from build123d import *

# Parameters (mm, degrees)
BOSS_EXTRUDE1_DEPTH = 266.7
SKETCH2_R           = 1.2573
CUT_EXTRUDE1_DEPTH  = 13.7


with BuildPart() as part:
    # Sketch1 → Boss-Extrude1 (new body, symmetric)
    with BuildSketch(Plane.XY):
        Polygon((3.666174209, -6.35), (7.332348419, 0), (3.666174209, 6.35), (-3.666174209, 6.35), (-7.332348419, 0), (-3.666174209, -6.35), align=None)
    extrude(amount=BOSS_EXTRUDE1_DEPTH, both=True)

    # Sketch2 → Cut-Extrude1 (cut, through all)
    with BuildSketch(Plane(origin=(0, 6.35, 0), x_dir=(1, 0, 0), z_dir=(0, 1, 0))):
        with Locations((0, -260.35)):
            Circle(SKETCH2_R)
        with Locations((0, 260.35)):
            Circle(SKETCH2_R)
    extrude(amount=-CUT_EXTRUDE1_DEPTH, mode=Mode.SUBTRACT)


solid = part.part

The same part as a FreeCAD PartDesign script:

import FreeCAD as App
import Part
import Sketcher
from FreeCAD import Vector
Q = App.Units.Quantity

doc = App.newDocument("Part")
body = doc.addObject("PartDesign::Body", "Body")

sketch1 = body.newObject("Sketcher::SketchObject", "Sketch")
sketch1.AttachmentSupport = (doc.getObject("XY_Plane"), [""])
sketch1.MapMode = "FlatFace"
sketch1.addGeometry(Part.LineSegment(Vector(4, -6, 0), Vector(7, 0, 0)), False)
sketch1.addGeometry(Part.LineSegment(Vector(7, 0, 0), Vector(4, 6, 0)), False)
sketch1.addGeometry(Part.LineSegment(Vector(4, 6, 0), Vector(-4, 6, 0)), False)
sketch1.addGeometry(Part.LineSegment(Vector(-4, 6, 0), Vector(-7, 0, 0)), False)
sketch1.addGeometry(Part.LineSegment(Vector(-7, 0, 0), Vector(-4, -6, 0)), False)
sketch1.addGeometry(Part.LineSegment(Vector(-4, -6, 0), Vector(4, -6, 0)), False)
sketch1.addConstraint(Sketcher.Constraint("Coincident", 0, 2, 1, 1))
sketch1.addConstraint(Sketcher.Constraint("Coincident", 1, 2, 2, 1))
sketch1.addConstraint(Sketcher.Constraint("Coincident", 2, 2, 3, 1))
sketch1.addConstraint(Sketcher.Constraint("Coincident", 3, 2, 4, 1))
sketch1.addConstraint(Sketcher.Constraint("Coincident", 4, 2, 5, 1))
sketch1.addConstraint(Sketcher.Constraint("Coincident", 5, 2, 0, 1))
sketch1.addConstraint(Sketcher.Constraint("Horizontal", 2))
sketch1.addConstraint(Sketcher.Constraint("Horizontal", 5))
sketch1.addConstraint(Sketcher.Constraint("Symmetric", 0, 2, 3, 2, -1, 1))
sketch1.addConstraint(Sketcher.Constraint("Symmetric", 1, 2, 4, 2, -1, 1))
sketch1.addConstraint(Sketcher.Constraint("PointOnObject", 0, 2, -1))
sketch1.addConstraint(Sketcher.Constraint("Parallel", 0, 3))
sketch1.addConstraint(Sketcher.Constraint("Vertical", 2, 2, 4, 2))
sketch1.addConstraint(Sketcher.Constraint("Angle", 0, Q("60 deg")))
sketch1.addConstraint(Sketcher.Constraint("DistanceY", 4, 2, 2, 2, Q("0.5 in")))
sketch1.addConstraint(Sketcher.Constraint("DistanceX", 2, 2, 2, 1, Q("7.332348 mm")))
pad1 = body.newObject("PartDesign::Pad", "Pad")
pad1.Profile = sketch1
pad1.Length = Q("21 in")
pad1.Midplane = True

sketch2 = body.newObject("Sketcher::SketchObject", "Sketch001")
sketch2.AttachmentSupport = (doc.getObject("XZ_Plane"), [""])
sketch2.MapMode = "FlatFace"
sketch2.AttachmentOffset = App.Placement(Vector(0, 0, -0.25 * 25.4), App.Rotation())
sketch2.addGeometry(Part.Circle(Vector(0, 260.4, 0), Vector(0, 0, 1), 1.3), False)
sketch2.addGeometry(Part.Circle(Vector(0, -260.4, 0), Vector(0, 0, 1), 1.3), False)
sketch2.addConstraint(Sketcher.Constraint("Equal", 0, 1))
sketch2.addConstraint(Sketcher.Constraint("Symmetric", 0, 3, 1, 3, -1, 1))
sketch2.addConstraint(Sketcher.Constraint("PointOnObject", 0, 3, -2))
sketch2.addConstraint(Sketcher.Constraint("Diameter", 0, Q("0.099 in")))
sketch2.addConstraint(Sketcher.Constraint("DistanceY", 1, 3, 0, 3, Q("20.5 in")))
pocket1 = body.newObject("PartDesign::Pocket", "Pocket")
pocket1.Profile = sketch2
pocket1.Type = "ThroughAll"
pocket1.Reversed = True

doc.recompute()
